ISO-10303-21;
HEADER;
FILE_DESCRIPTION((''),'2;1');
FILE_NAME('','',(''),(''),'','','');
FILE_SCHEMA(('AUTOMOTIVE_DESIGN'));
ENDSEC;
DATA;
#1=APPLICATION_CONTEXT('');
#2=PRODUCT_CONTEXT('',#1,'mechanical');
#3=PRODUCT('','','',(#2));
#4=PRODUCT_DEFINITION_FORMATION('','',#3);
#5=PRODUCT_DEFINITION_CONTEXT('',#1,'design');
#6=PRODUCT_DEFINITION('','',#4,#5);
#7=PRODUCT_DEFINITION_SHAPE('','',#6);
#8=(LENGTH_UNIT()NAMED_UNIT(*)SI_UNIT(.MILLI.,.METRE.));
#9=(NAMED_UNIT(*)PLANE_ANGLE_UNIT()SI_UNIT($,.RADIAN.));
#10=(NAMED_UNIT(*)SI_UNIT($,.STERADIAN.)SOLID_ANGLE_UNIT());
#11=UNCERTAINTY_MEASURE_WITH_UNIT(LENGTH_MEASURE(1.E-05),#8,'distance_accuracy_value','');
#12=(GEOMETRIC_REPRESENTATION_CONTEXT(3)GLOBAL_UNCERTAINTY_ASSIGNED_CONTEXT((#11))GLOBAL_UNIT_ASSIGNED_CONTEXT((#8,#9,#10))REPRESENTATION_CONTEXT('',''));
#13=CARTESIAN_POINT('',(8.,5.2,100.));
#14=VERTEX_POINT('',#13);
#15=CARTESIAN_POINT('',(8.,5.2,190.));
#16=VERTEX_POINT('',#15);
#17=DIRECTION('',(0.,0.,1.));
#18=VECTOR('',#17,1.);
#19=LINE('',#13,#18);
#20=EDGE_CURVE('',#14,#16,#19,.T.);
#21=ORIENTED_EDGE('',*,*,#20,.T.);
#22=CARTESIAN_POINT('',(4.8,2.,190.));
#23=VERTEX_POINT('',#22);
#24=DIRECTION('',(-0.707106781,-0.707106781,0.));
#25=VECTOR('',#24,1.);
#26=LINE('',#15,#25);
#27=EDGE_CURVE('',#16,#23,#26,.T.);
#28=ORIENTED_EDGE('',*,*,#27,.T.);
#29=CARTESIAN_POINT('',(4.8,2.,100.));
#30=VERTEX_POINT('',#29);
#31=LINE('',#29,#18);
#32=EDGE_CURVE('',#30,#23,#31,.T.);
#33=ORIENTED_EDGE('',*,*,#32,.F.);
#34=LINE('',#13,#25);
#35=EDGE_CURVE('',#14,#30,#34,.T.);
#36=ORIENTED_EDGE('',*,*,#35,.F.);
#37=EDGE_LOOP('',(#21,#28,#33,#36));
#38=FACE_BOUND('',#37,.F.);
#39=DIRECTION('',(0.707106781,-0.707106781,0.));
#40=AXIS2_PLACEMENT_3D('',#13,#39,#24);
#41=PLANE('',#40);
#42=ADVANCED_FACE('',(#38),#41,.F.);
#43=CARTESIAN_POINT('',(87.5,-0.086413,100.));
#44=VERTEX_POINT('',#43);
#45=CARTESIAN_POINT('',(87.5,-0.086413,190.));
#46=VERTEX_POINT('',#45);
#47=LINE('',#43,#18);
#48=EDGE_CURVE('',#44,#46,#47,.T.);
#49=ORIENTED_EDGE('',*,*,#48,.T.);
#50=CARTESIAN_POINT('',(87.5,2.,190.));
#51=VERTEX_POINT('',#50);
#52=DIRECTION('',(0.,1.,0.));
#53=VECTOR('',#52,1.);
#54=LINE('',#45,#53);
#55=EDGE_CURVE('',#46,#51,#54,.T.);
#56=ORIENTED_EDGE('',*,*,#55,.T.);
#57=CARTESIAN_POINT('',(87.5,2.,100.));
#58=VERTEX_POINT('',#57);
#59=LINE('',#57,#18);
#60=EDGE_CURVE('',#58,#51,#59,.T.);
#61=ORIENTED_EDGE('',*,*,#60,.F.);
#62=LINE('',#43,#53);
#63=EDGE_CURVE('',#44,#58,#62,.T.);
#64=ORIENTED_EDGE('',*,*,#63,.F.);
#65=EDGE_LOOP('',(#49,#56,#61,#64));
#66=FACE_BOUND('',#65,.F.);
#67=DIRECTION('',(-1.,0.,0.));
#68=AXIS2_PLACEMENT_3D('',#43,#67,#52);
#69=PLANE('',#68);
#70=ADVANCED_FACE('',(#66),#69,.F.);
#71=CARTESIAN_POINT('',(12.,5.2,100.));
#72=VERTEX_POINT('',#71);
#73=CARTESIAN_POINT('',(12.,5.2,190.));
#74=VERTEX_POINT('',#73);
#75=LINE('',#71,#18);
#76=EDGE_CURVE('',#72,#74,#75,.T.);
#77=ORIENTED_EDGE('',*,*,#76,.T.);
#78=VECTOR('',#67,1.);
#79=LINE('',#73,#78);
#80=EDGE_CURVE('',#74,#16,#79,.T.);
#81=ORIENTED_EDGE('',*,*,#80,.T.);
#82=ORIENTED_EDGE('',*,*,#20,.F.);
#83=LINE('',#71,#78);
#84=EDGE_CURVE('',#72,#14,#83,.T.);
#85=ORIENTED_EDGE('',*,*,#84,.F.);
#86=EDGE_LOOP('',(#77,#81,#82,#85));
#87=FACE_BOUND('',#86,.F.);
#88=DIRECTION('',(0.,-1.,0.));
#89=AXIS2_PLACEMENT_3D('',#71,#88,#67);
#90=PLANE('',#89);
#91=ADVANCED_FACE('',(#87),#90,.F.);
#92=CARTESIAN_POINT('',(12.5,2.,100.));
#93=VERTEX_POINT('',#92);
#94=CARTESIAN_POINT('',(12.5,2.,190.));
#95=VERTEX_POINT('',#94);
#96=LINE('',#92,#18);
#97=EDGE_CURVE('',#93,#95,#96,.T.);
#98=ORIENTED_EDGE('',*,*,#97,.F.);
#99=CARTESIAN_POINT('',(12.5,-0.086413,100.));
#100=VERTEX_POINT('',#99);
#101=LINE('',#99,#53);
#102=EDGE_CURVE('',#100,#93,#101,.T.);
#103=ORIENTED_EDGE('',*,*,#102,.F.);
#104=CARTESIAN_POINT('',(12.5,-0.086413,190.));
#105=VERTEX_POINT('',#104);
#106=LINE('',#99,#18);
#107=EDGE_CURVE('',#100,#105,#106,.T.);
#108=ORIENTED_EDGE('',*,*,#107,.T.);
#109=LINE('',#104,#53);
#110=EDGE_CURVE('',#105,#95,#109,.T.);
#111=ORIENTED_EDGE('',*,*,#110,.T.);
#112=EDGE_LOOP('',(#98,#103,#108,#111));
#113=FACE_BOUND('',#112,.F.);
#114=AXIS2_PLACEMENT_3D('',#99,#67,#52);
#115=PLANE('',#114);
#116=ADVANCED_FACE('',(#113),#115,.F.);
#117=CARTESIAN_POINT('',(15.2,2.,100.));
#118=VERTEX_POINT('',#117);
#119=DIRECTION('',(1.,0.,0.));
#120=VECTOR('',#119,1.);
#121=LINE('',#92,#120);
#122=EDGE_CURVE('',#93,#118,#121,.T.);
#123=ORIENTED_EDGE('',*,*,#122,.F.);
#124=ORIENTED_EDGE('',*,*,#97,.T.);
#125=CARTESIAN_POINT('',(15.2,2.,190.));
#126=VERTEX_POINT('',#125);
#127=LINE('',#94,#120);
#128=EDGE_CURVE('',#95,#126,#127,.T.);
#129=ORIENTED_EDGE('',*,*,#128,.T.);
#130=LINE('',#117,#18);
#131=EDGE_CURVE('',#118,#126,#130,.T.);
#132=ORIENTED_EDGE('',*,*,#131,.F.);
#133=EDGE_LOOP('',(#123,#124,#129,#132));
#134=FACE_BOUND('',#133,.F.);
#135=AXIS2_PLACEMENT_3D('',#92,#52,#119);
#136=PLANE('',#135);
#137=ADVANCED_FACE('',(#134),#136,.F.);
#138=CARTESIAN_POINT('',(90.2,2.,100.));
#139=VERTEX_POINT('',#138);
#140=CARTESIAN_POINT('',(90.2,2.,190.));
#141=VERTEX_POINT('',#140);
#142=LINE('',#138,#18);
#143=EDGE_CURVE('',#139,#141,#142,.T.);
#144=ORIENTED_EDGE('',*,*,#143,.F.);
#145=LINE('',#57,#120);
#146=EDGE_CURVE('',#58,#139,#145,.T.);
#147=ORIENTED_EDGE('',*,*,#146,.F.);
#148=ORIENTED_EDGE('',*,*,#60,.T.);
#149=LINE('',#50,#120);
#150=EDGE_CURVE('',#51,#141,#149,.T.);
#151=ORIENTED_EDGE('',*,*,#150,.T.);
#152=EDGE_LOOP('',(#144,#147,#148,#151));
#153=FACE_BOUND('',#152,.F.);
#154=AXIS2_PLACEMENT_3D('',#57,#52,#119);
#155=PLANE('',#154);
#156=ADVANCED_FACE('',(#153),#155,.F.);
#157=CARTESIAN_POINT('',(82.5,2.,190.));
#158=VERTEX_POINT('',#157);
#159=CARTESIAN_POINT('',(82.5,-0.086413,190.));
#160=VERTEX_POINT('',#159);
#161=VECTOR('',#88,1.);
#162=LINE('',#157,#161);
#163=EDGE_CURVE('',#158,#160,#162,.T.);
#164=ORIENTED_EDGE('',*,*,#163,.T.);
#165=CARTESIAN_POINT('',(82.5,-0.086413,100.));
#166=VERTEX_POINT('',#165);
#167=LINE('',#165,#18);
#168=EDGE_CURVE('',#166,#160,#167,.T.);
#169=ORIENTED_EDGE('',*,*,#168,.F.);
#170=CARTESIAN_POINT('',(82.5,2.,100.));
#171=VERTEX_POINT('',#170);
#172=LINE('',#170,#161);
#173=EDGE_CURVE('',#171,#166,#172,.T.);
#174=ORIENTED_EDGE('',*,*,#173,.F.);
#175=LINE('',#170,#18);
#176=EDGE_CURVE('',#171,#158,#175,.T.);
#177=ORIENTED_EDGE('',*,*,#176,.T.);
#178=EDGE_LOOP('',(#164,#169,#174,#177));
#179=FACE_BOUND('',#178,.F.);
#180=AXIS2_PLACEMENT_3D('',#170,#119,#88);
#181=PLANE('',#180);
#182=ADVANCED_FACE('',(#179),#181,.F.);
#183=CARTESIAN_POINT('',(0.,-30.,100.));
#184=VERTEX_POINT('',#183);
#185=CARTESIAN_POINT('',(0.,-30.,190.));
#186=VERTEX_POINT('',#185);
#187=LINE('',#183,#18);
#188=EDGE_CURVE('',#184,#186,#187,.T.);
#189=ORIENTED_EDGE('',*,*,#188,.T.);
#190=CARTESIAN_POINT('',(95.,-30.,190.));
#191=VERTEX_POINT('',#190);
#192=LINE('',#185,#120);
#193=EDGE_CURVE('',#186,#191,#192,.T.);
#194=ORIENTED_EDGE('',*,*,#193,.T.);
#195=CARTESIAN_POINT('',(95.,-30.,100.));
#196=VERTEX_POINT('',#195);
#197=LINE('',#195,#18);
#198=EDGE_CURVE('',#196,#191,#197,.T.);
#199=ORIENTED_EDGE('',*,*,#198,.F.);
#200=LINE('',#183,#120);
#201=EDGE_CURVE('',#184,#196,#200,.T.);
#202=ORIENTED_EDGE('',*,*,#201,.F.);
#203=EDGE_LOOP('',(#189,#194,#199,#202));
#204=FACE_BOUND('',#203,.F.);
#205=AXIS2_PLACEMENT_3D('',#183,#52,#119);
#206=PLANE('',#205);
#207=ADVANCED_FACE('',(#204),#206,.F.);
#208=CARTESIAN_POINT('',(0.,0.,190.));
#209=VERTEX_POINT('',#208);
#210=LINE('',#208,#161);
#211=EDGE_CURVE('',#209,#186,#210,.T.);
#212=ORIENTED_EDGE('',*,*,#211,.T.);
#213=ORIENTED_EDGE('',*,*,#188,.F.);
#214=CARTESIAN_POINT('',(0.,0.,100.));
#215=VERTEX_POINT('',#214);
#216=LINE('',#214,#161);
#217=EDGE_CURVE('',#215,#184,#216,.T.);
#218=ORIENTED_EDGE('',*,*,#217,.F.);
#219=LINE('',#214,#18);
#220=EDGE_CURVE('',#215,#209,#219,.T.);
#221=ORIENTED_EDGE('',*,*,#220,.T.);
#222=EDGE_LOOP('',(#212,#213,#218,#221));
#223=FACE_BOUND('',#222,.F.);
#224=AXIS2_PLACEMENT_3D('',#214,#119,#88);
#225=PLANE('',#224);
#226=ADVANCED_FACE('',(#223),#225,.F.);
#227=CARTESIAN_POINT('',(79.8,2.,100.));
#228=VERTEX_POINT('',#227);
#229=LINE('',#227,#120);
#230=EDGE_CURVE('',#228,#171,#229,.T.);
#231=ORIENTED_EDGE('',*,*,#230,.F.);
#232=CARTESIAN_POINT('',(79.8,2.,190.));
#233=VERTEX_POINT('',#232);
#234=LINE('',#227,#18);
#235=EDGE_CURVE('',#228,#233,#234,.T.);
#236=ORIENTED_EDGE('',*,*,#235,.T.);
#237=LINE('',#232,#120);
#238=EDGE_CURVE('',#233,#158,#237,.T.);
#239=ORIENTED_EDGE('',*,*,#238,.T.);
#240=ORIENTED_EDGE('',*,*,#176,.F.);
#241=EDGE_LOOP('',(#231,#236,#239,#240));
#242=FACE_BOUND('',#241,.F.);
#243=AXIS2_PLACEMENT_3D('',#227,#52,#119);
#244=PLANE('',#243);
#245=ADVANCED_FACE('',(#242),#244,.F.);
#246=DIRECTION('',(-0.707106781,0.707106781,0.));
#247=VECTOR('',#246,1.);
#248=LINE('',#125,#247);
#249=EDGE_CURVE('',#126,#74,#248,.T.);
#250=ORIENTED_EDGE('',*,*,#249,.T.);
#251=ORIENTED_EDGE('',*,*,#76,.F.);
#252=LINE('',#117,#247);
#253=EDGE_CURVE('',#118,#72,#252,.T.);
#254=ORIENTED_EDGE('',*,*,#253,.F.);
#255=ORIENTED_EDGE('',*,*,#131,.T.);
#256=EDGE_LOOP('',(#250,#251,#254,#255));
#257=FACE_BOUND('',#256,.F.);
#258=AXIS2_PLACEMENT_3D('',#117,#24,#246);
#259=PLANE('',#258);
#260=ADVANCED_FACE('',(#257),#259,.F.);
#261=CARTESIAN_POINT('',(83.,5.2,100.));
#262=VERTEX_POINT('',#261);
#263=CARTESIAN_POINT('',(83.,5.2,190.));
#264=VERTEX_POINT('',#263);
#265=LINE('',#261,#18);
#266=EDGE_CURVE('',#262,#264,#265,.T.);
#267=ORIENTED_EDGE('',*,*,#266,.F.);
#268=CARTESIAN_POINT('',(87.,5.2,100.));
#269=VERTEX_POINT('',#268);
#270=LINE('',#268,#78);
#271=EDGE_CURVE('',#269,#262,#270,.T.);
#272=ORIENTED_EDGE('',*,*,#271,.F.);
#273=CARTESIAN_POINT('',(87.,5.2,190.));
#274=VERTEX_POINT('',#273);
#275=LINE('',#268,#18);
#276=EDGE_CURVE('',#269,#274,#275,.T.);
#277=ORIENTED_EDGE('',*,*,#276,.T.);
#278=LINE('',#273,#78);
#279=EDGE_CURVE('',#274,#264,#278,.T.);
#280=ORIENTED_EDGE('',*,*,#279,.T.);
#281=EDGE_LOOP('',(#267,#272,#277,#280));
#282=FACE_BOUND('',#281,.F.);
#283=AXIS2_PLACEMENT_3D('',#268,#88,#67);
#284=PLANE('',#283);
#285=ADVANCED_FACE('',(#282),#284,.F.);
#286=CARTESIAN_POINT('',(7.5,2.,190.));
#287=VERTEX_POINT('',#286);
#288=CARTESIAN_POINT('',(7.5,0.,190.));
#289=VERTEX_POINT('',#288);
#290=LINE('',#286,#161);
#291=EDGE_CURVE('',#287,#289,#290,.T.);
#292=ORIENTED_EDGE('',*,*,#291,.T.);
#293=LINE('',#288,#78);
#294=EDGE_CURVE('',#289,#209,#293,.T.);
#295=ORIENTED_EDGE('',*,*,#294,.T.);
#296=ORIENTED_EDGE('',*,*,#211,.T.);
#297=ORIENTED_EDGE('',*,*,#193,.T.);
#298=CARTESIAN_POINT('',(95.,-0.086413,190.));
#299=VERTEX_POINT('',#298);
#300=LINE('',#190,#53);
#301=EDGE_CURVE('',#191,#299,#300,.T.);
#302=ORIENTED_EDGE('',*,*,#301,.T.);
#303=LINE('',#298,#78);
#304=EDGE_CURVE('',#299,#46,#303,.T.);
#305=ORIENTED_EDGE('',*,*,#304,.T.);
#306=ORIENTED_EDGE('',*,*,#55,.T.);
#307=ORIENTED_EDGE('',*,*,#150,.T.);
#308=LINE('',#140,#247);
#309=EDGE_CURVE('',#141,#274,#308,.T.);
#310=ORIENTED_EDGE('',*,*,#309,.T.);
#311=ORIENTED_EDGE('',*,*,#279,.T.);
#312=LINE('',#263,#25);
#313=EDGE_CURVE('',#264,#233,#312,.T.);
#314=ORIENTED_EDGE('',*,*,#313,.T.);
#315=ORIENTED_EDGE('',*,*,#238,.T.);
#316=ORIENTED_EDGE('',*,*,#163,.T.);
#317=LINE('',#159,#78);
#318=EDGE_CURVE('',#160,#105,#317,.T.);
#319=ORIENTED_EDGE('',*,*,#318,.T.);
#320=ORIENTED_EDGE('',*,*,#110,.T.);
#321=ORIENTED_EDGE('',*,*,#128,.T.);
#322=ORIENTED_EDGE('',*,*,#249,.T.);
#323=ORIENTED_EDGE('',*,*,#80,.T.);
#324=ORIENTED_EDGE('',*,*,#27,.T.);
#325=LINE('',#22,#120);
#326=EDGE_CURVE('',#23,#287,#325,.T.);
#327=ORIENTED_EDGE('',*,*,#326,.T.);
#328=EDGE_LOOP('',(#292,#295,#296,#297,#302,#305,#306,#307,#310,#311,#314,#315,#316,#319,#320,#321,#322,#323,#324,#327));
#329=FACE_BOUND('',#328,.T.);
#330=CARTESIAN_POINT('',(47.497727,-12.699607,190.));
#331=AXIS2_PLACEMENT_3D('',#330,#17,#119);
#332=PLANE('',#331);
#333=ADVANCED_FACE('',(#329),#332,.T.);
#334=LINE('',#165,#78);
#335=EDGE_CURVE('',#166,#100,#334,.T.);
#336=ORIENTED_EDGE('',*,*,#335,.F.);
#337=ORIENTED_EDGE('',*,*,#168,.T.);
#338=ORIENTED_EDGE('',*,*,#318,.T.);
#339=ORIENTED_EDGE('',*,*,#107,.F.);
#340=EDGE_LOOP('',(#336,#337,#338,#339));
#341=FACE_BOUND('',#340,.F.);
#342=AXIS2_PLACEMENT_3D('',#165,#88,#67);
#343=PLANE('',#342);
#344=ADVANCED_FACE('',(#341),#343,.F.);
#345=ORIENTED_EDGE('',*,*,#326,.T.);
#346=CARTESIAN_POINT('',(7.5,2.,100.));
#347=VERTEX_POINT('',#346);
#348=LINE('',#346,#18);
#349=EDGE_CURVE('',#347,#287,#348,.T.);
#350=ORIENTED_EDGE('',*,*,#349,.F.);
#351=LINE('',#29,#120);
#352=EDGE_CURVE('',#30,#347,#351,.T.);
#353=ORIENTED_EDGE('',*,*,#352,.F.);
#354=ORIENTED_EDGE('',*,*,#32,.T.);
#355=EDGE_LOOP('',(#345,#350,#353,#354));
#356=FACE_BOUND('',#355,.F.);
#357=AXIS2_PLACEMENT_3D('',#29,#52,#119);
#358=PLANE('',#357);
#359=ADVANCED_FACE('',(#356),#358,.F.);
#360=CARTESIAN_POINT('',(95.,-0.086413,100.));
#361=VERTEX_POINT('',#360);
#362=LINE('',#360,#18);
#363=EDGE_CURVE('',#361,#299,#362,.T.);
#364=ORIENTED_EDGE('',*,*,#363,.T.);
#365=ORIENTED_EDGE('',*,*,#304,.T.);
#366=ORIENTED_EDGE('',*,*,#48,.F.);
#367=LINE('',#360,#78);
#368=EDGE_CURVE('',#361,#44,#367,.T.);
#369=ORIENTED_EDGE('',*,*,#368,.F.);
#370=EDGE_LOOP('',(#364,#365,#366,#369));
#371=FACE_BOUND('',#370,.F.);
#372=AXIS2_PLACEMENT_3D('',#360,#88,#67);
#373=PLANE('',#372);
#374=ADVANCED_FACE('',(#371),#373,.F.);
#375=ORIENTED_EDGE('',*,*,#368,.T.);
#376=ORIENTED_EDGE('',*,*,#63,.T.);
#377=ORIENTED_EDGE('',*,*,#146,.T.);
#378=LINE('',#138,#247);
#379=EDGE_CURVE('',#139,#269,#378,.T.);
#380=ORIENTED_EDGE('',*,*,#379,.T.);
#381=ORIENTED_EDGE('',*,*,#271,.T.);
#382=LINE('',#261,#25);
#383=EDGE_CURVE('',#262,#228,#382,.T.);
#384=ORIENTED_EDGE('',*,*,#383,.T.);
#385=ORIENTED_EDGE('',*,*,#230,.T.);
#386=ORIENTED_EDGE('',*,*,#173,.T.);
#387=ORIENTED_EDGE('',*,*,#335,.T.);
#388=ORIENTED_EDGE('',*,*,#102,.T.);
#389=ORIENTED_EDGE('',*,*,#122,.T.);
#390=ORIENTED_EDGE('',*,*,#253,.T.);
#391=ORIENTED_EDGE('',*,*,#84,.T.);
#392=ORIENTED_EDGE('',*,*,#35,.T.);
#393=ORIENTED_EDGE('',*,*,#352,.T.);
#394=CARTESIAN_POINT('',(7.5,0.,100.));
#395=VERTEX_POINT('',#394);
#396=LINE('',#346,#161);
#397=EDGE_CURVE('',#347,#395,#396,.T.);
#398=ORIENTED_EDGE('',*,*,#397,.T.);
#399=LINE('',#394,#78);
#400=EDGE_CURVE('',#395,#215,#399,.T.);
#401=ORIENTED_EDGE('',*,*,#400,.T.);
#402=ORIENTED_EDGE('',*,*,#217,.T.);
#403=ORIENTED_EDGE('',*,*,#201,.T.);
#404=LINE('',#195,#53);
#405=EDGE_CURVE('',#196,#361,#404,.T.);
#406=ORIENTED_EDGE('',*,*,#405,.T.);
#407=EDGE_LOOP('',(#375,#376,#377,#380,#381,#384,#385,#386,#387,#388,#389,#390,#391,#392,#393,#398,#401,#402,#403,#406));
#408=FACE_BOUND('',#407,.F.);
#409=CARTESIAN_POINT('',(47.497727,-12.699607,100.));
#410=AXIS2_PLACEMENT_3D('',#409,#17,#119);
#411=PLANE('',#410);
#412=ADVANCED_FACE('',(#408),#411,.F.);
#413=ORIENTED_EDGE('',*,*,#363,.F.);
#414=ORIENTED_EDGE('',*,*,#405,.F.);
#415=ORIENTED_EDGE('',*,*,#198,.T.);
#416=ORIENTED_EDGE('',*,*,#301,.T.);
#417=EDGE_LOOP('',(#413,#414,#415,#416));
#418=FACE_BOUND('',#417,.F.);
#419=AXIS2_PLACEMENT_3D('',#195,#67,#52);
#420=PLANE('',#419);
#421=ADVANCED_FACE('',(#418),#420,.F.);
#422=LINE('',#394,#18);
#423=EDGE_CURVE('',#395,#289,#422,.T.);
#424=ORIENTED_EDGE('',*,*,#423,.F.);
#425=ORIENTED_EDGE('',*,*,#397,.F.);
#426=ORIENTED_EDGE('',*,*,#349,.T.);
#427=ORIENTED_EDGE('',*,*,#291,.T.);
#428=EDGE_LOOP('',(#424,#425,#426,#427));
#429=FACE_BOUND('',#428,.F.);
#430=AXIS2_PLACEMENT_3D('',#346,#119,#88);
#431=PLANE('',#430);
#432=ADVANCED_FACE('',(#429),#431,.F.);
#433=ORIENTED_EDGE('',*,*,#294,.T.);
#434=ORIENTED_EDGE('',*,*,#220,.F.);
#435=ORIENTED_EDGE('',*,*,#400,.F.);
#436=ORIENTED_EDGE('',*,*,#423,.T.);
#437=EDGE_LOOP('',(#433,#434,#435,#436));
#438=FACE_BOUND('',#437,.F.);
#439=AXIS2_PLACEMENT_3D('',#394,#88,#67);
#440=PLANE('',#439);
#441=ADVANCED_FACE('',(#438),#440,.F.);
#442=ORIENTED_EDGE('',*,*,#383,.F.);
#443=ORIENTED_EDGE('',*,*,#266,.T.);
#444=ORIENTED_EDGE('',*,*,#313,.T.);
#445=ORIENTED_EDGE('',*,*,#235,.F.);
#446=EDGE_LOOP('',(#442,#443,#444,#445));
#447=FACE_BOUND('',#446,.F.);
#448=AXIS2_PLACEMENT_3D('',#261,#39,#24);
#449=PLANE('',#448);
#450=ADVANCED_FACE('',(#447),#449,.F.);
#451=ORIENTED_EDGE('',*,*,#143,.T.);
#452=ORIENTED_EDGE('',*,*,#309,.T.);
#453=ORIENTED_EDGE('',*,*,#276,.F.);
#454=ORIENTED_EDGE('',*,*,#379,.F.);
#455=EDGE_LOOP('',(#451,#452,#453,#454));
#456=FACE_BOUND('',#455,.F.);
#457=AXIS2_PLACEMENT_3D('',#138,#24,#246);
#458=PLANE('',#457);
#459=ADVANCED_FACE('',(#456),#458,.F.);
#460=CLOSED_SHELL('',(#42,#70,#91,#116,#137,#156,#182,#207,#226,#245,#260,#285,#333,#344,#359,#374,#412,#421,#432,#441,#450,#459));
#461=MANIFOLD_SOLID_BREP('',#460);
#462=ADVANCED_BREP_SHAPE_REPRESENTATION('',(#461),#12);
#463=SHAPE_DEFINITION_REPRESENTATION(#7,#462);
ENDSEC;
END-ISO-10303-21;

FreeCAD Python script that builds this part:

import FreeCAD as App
import Part
import Sketcher

V = App.Vector


def add_polygon(sketch, points):
    """Adds a closed chain of lines whose ends are joined by coincident constraints."""
    first, n = sketch.GeometryCount, len(points)
    for a, b in zip(points, points[1:] + points[:1]):
        sketch.addGeometry(Part.LineSegment(App.Vector(*a, 0), App.Vector(*b, 0)), False)
    for i in range(n):
        sketch.addConstraint(Sketcher.Constraint("Coincident", first + i, 2, first + (i + 1) % n, 1))

doc = App.newDocument("Part")
params = doc.addObject("Spreadsheet::Sheet", "Params")
for row, (alias, value) in enumerate([
    ("sketch1_width", "95 mm"),
    ("sketch1_width2", "4 mm"),
    ("sketch1_width3", "70 mm"),
    ("sketch1_height", "30 mm"),
    ("sketch1_height2", "2 mm"),
    ("pad1_length", "90 mm"),
], start=1):
    params.set(f"A{row}", alias)
    params.set(f"B{row}", "=" + value)
    params.setAlias(f"B{row}", alias)

body = doc.addObject("PartDesign::Body", "Body")

sketch1 = body.newObject("Sketcher::SketchObject", "Sketch")
sketch1.AttachmentSupport = (doc.getObject("XY_Plane"), [""])
sketch1.MapMode = "FlatFace"
sketch1.AttachmentOffset = App.Placement(V(0, 0, 100), App.Rotation())
add_polygon(sketch1, [(7.5, 0), (0, 0), (0, -30), (95, -30), (95, -0.1), (87.5, -0.1), (87.5, 2), (90.2, 2), (87, 5.2), (83, 5.2), (79.8, 2), (82.5, 2), (82.5, -0.1), (12.5, -0.1), (12.5, 2), (15.2, 2), (12, 5.2), (8, 5.2), (4.8, 2), (7.5, 2)])
sketch1.addConstraint([
    Sketcher.Constraint("Horizontal", 0),
    Sketcher.Constraint("Vertical", 1),
    Sketcher.Constraint("Horizontal", 2),
    Sketcher.Constraint("Vertical", 3),
    Sketcher.Constraint("Horizontal", 4),
    Sketcher.Constraint("Vertical", 5),
    Sketcher.Constraint("Horizontal", 6),
    Sketcher.Constraint("Horizontal", 8),
    Sketcher.Constraint("Horizontal", 10),
    Sketcher.Constraint("Vertical", 11),
    Sketcher.Constraint("Horizontal", 12),
    Sketcher.Constraint("Vertical", 13),
    Sketcher.Constraint("Horizontal", 14),
    Sketcher.Constraint("Horizontal", 16),
    Sketcher.Constraint("Horizontal", 18),
    Sketcher.Constraint("Vertical", 19),
    Sketcher.Constraint("Coincident", 0, 2, -1, 1),
    Sketcher.Constraint("Perpendicular", 7, 9),
    Sketcher.Constraint("Perpendicular", 9, 15),
    Sketcher.Constraint("Perpendicular", 15, 17),
    Sketcher.Constraint("Horizontal", 6, 2, 9, 2),
    Sketcher.Constraint("Horizontal", 4, 2, 11, 2),
    Sketcher.Constraint("Horizontal", 10, 2, 13, 2),
    Sketcher.Constraint("Horizontal", 8, 2, 15, 2),
    Sketcher.Constraint("Horizontal", 14, 2, 17, 2),
    Sketcher.Constraint("Equal", 0, 4),
    Sketcher.Constraint("Equal", 6, 10),
    Sketcher.Constraint("Equal", 10, 14),
    Sketcher.Constraint("Equal", 8, 16),
    Sketcher.Constraint("Equal", 14, 18),
    Sketcher.Constraint("Equal", 7, 9),
    Sketcher.Constraint("DistanceX", 2, 1, 2, 2, 95.0),
    Sketcher.Constraint("DistanceX", 8, 2, 8, 1, 4.0),
    Sketcher.Constraint("DistanceX", 12, 2, 12, 1, 70.0),
    Sketcher.Constraint("DistanceY", 1, 2, 1, 1, 30.0),
    Sketcher.Constraint("DistanceY", 19, 2, 19, 1, 2.0),
    Sketcher.Constraint("DistanceX", 0, 2, 0, 1, 7.5),
    Sketcher.Constraint("DistanceX", 6, 1, 6, 2, 2.7),
    Sketcher.Constraint("DistanceY", 3, 1, 3, 2, 29.913587),
])
sketch1.setExpression("Constraints[51]", "Params.sketch1_width")
sketch1.setExpression("Constraints[52]", "Params.sketch1_width2")
sketch1.setExpression("Constraints[53]", "Params.sketch1_width3")
sketch1.setExpression("Constraints[54]", "Params.sketch1_height")
sketch1.setExpression("Constraints[55]", "Params.sketch1_height2")
pad1 = body.newObject("PartDesign::Pad", "Pad")
pad1.Profile = sketch1
pad1.setExpression("Length", "Params.pad1_length")

doc.recompute()
